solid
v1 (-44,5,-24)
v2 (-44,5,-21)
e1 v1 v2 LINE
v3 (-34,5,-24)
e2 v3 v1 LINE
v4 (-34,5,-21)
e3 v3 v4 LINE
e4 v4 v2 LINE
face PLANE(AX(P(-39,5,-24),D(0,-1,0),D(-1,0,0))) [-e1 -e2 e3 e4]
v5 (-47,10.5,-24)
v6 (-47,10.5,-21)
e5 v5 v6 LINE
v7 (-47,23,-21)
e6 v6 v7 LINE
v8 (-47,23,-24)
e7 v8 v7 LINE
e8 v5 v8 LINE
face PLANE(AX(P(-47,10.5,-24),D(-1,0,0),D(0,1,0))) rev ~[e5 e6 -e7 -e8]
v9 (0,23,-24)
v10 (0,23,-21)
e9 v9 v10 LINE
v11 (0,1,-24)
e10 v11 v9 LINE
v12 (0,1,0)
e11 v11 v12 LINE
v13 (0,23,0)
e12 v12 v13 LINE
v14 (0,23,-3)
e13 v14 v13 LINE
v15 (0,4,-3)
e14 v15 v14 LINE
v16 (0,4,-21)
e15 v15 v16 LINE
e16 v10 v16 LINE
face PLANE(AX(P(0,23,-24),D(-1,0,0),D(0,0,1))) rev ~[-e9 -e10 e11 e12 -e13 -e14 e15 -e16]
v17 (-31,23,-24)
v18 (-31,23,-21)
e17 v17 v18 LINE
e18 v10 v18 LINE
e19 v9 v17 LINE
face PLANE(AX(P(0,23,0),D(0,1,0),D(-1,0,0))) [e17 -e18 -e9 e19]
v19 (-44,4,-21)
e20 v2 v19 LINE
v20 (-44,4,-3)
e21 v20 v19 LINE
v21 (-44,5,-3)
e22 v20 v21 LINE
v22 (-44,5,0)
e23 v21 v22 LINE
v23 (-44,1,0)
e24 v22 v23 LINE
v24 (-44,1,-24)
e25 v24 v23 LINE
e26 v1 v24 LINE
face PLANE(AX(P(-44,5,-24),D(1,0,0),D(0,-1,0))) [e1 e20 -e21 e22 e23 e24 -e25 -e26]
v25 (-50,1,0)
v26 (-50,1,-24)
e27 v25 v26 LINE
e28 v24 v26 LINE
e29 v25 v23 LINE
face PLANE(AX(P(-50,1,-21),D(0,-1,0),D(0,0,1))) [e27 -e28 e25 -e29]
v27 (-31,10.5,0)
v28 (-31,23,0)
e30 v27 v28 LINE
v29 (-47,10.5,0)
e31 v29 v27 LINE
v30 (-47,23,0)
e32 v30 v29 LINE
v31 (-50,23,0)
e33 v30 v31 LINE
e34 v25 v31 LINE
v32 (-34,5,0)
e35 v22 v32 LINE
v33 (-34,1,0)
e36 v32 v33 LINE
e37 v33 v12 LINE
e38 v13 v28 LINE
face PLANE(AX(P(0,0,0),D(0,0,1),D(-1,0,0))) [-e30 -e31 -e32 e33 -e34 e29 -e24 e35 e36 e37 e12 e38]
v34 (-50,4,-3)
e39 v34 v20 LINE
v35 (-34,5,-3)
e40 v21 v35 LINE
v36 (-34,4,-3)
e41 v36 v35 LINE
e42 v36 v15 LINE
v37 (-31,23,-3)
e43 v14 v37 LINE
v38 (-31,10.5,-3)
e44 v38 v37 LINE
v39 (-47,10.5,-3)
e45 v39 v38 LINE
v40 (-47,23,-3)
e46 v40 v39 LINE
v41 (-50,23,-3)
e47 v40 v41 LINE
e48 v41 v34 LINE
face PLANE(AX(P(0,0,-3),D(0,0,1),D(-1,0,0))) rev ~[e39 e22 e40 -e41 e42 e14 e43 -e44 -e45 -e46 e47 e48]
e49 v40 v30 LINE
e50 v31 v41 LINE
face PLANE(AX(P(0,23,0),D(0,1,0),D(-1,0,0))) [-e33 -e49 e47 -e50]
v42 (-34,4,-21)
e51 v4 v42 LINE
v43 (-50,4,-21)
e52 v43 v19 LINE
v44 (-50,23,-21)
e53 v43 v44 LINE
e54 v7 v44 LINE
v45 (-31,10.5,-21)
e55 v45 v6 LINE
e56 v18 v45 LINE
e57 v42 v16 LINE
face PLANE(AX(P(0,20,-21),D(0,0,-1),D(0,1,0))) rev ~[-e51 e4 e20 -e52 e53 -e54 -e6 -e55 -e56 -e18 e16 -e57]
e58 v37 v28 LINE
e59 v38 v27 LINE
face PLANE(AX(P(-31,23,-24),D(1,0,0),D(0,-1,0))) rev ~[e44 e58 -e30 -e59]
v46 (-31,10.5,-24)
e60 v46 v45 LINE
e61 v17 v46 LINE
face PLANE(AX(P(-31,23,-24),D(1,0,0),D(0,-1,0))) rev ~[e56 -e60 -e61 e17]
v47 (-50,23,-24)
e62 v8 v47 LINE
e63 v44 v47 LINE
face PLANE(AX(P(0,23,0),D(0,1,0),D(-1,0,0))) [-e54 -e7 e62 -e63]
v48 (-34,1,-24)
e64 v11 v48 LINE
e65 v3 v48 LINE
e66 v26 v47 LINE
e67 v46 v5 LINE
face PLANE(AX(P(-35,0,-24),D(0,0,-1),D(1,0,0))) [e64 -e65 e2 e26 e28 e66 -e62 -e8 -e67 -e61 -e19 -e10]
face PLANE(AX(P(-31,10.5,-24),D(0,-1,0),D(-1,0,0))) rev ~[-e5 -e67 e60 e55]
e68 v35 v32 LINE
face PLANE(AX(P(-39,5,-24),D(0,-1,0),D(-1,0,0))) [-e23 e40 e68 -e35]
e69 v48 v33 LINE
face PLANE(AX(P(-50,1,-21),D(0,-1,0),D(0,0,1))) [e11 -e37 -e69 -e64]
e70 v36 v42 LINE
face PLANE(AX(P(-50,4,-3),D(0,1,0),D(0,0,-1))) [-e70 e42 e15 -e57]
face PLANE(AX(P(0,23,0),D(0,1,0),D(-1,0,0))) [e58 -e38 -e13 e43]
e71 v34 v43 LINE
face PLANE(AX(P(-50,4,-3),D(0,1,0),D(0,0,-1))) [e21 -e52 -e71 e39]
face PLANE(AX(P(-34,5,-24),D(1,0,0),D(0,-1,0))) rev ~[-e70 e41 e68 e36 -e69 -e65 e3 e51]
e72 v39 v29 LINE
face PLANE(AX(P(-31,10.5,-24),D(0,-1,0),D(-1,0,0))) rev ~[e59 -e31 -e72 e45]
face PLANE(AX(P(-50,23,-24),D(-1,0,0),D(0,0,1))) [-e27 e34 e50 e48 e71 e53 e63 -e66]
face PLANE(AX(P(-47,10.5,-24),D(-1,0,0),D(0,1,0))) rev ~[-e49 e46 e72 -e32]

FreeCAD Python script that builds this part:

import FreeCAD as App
import Part
import Sketcher
from FreeCAD import Vector

doc = App.newDocument("Part")
body = doc.addObject("PartDesign::Body", "Body")

# Sketch on XZ plane
sketch1 = body.newObject("Sketcher::SketchObject", "Sketch")
sketch1.AttachmentSupport = (doc.getObject("XZ_Plane"), [""])
sketch1.MapMode = "FlatFace"
sketch1.addGeometry([
    Part.LineSegment(Vector(-35, 0, 0), Vector(0, 0, 0)),
    Part.LineSegment(Vector(0, 0, 0), Vector(0, -24, 0)),
    Part.LineSegment(Vector(0, -24, 0), Vector(-35, -24, 0)),
    Part.LineSegment(Vector(-35, -24, 0), Vector(-35, 0, 0)),
], False)
sketch1.addConstraint([
    Sketcher.Constraint("Coincident", 0, 2, 1, 1),
    Sketcher.Constraint("Coincident", 1, 2, 2, 1),
    Sketcher.Constraint("Coincident", 2, 2, 3, 1),
    Sketcher.Constraint("Coincident", 3, 2, 0, 1),
    Sketcher.Constraint("Horizontal", 0),
    Sketcher.Constraint("Vertical", 1),
    Sketcher.Constraint("Horizontal", 2),
    Sketcher.Constraint("Vertical", 3),
    Sketcher.Constraint("Coincident", 0, 2, -1, 1),
    Sketcher.Constraint("DistanceX", 0, 1, 0, 2, 35.0),
    Sketcher.Constraint("DistanceY", 1, 2, 1, 1, 24.0),
])
pad1 = body.newObject("PartDesign::Pad", "Pad")
pad1.Profile = sketch1
pad1.Length = 23
pad1.Reversed = True

# Sketch on XZ plane
sketch2 = body.newObject("Sketcher::SketchObject", "Sketch001")
sketch2.AttachmentSupport = (doc.getObject("XZ_Plane"), [""])
sketch2.MapMode = "FlatFace"
sketch2.addGeometry([
    Part.LineSegment(Vector(-35, -3, 0), Vector(-35, -21, 0)),
    Part.LineSegment(Vector(-35, -21, 0), Vector(0, -21, 0)),
    Part.LineSegment(Vector(0, -21, 0), Vector(0, -3, 0)),
    Part.LineSegment(Vector(0, -3, 0), Vector(-35, -3, 0)),
], False)
sketch2.addConstraint([
    Sketcher.Constraint("Coincident", 0, 2, 1, 1),
    Sketcher.Constraint("Coincident", 1, 2, 2, 1),
    Sketcher.Constraint("Coincident", 2, 2, 3, 1),
    Sketcher.Constraint("Coincident", 3, 2, 0, 1),
    Sketcher.Constraint("Vertical", 0),
    Sketcher.Constraint("Horizontal", 1),
    Sketcher.Constraint("Vertical", 2),
    Sketcher.Constraint("Horizontal", 3),
    Sketcher.Constraint("PointOnObject", 1, 2, -2),
    Sketcher.Constraint("DistanceX", 1, 1, 1, 2, 35.0),
    Sketcher.Constraint("DistanceY", 0, 2, 0, 1, 18.0),
    Sketcher.Constraint("DistanceY", 0, 2, -1, 1, 21.0),
])
pocket1 = body.newObject("PartDesign::Pocket", "Pocket")
pocket1.Profile = sketch2
pocket1.Length = 20

# Sketch on YZ plane
sketch3 = body.newObject("Sketcher::SketchObject", "Sketch002")
sketch3.AttachmentSupport = (doc.getObject("YZ_Plane"), [""])
sketch3.MapMode = "FlatFace"
sketch3.addGeometry([
    Part.LineSegment(Vector(0, 0, 0), Vector(0, -24, 0)),
    Part.LineSegment(Vector(0, -24, 0), Vector(1, -24, 0)),
    Part.LineSegment(Vector(1, -24, 0), Vector(1, 0, 0)),
    Part.LineSegment(Vector(1, 0, 0), Vector(0, 0, 0)),
], False)
sketch3.addConstraint([
    Sketcher.Constraint("Coincident", 0, 2, 1, 1),
    Sketcher.Constraint("Coincident", 1, 2, 2, 1),
    Sketcher.Constraint("Coincident", 2, 2, 3, 1),
    Sketcher.Constraint("Coincident", 3, 2, 0, 1),
    Sketcher.Constraint("Vertical", 0),
    Sketcher.Constraint("Horizontal", 1),
    Sketcher.Constraint("Vertical", 2),
    Sketcher.Constraint("Horizontal", 3),
    Sketcher.Constraint("Coincident", 3, 2, -1, 1),
    Sketcher.Constraint("DistanceX", 1, 1, 1, 2, 1.0),
    Sketcher.Constraint("DistanceY", 0, 2, 0, 1, 24.0),
])
pocket2 = body.newObject("PartDesign::Pocket", "Pocket001")
pocket2.Profile = sketch3
pocket2.Length = 50.1625

# Sketch on YZ plane
sketch4 = body.newObject("Sketcher::SketchObject", "Sketch003")
sketch4.AttachmentSupport = (doc.getObject("YZ_Plane"), [""])
sketch4.MapMode = "FlatFace"
sketch4.AttachmentOffset = App.Placement(Vector(0, 0, -35), App.Rotation())
sketch4.addGeometry([
    Part.LineSegment(Vector(1, -24, 0), Vector(1, -21, 0)),  # 0
    Part.LineSegment(Vector(1, -21, 0), Vector(20, -21, 0)),  # 1
    Part.LineSegment(Vector(20, -21, 0), Vector(20, -3, 0)),  # 2
    Part.LineSegment(Vector(20, -3, 0), Vector(1, -3, 0)),  # 3
    Part.LineSegment(Vector(1, -3, 0), Vector(1, 0, 0)),  # 4
    Part.LineSegment(Vector(1, 0, 0), Vector(23, 0, 0)),  # 5
    Part.LineSegment(Vector(23, 0, 0), Vector(23, -24, 0)),  # 6
    Part.LineSegment(Vector(23, -24, 0), Vector(1, -24, 0)),  # 7
], False)
sketch4.addConstraint([
    Sketcher.Constraint("Coincident", 0, 2, 1, 1),
    Sketcher.Constraint("Coincident", 1, 2, 2, 1),
    Sketcher.Constraint("Coincident", 2, 2, 3, 1),
    Sketcher.Constraint("Coincident", 3, 2, 4, 1),
    Sketcher.Constraint("Coincident", 4, 2, 5, 1),
    Sketcher.Constraint("Coincident", 5, 2, 6, 1),
    Sketcher.Constraint("Coincident", 6, 2, 7, 1),
    Sketcher.Constraint("Coincident", 7, 2, 0, 1),
    Sketcher.Constraint("Vertical", 0),
    Sketcher.Constraint("Horizontal", 1),
    Sketcher.Constraint("Vertical", 2),
    Sketcher.Constraint("Horizontal", 3),
    Sketcher.Constraint("Vertical", 4),
    Sketcher.Constraint("Horizontal", 5),
    Sketcher.Constraint("Vertical", 6),
    Sketcher.Constraint("Horizontal", 7),
    Sketcher.Constraint("PointOnObject", 4, 2, -1),
    Sketcher.Constraint("Vertical", 0, 2, 3, 2),
    Sketcher.Constraint("Equal", 0, 4),
    Sketcher.Constraint("DistanceX", 1, 1, 1, 2, 19.0),
    Sketcher.Constraint("DistanceX", 5, 1, 5, 2, 22.0),
    Sketcher.Constraint("DistanceY", 0, 1, 0, 2, 3.0),
    Sketcher.Constraint("DistanceY", 2, 1, 2, 2, 18.0),
    Sketcher.Constraint("DistanceX", -1, 1, 0, 2, 1.0),
])
pad2 = body.newObject("PartDesign::Pad", "Pad001")
pad2.Profile = sketch4
pad2.Length = 15
pad2.Reversed = True

# Sketch on YZ plane
sketch5 = body.newObject("Sketcher::SketchObject", "Sketch004")
sketch5.AttachmentSupport = (doc.getObject("YZ_Plane"), [""])
sketch5.MapMode = "FlatFace"
sketch5.AttachmentOffset = App.Placement(Vector(0, 0, -50), App.Rotation())
sketch5.addGeometry([
    Part.LineSegment(Vector(1, -3, 0), Vector(4, -3, 0)),
    Part.LineSegment(Vector(4, -3, 0), Vector(4, -21, 0)),
    Part.LineSegment(Vector(4, -21, 0), Vector(1, -21, 0)),
    Part.LineSegment(Vector(1, -21, 0), Vector(1, -3, 0)),
], False)
sketch5.addConstraint([
    Sketcher.Constraint("Coincident", 0, 2, 1, 1),
    Sketcher.Constraint("Coincident", 1, 2, 2, 1),
    Sketcher.Constraint("Coincident", 2, 2, 3, 1),
    Sketcher.Constraint("Coincident", 3, 2, 0, 1),
    Sketcher.Constraint("Horizontal", 0),
    Sketcher.Constraint("Vertical", 1),
    Sketcher.Constraint("Horizontal", 2),
    Sketcher.Constraint("Vertical", 3),
    Sketcher.Constraint("DistanceX", 0, 1, 0, 2, 3.0),
    Sketcher.Constraint("DistanceY", 0, 2, -1, 1, 3.0),
    Sketcher.Constraint("DistanceY", 1, 2, 1, 1, 18.0),
    Sketcher.Constraint("DistanceX", -1, 1, 0, 2, 4.0),
])
pad3 = body.newObject("PartDesign::Pad", "Pad002")
pad3.Profile = sketch5
pad3.Length = 50

# Sketch on YZ plane
sketch6 = body.newObject("Sketcher::SketchObject", "Sketch005")
sketch6.AttachmentSupport = (doc.getObject("YZ_Plane"), [""])
sketch6.MapMode = "FlatFace"
sketch6.addGeometry([
    Part.LineSegment(Vector(23, -21, 0), Vector(23, -3, 0)),
    Part.LineSegment(Vector(23, -3, 0), Vector(20, -3, 0)),
    Part.LineSegment(Vector(20, -3, 0), Vector(20, -21, 0)),
    Part.LineSegment(Vector(20, -21, 0), Vector(23, -21, 0)),
], False)
sketch6.addConstraint([
    Sketcher.Constraint("Coincident", 0, 2, 1, 1),
    Sketcher.Constraint("Coincident", 1, 2, 2, 1),
    Sketcher.Constraint("Coincident", 2, 2, 3, 1),
    Sketcher.Constraint("Coincident", 3, 2, 0, 1),
    Sketcher.Constraint("Vertical", 0),
    Sketcher.Constraint("Horizontal", 1),
    Sketcher.Constraint("Vertical", 2),
    Sketcher.Constraint("Horizontal", 3),
    Sketcher.Constraint("DistanceY", 0, 1, 0, 2, 18.0),
    Sketcher.Constraint("DistanceX", 1, 2, 1, 1, 3.0),
    Sketcher.Constraint("DistanceX", -1, 1, 0, 2, 23.0),
    Sketcher.Constraint("DistanceY", 0, 2, -1, 1, 3.0),
])
pocket3 = body.newObject("PartDesign::Pocket", "Pocket002")
pocket3.Profile = sketch6
pocket3.Length = 50

# Sketch on XY plane
sketch7 = body.newObject("Sketcher::SketchObject", "Sketch006")
sketch7.AttachmentSupport = (doc.getObject("XY_Plane"), [""])
sketch7.MapMode = "FlatFace"
sketch7.AttachmentOffset = App.Placement(Vector(0, 0, -24), App.Rotation())
sketch7.addGeometry([
    Part.LineSegment(Vector(-47, 23, 0), Vector(-31, 23, 0)),
    Part.LineSegment(Vector(-31, 23, 0), Vector(-31, 10, 0)),
    Part.LineSegment(Vector(-31, 10, 0), Vector(-47, 10, 0)),
    Part.LineSegment(Vector(-47, 10, 0), Vector(-47, 23, 0)),
], False)
sketch7.addConstraint([
    Sketcher.Constraint("Coincident", 0, 2, 1, 1),
    Sketcher.Constraint("Coincident", 1, 2, 2, 1),
    Sketcher.Constraint("Coincident", 2, 2, 3, 1),
    Sketcher.Constraint("Coincident", 3, 2, 0, 1),
    Sketcher.Constraint("Horizontal", 0),
    Sketcher.Constraint("Vertical", 1),
    Sketcher.Constraint("Horizontal", 2),
    Sketcher.Constraint("Vertical", 3),
    Sketcher.Constraint("DistanceX", 0, 1, 0, 2, 16.0),
    Sketcher.Constraint("DistanceY", 1, 2, 1, 1, 12.5),
    Sketcher.Constraint("DistanceX", 0, 2, -1, 1, 31.0),
    Sketcher.Constraint("DistanceY", -1, 1, 0, 2, 23.0),
])
pocket4 = body.newObject("PartDesign::Pocket", "Pocket003")
pocket4.Profile = sketch7
pocket4.Length = 30.6375
pocket4.Reversed = True

# Sketch on XY plane
sketch8 = body.newObject("Sketcher::SketchObject", "Sketch007")
sketch8.AttachmentSupport = (doc.getObject("XY_Plane"), [""])
sketch8.MapMode = "FlatFace"
sketch8.AttachmentOffset = App.Placement(Vector(0, 0, -24), App.Rotation())
sketch8.addGeometry([
    Part.LineSegment(Vector(-34, 5, 0), Vector(-34, 1, 0)),
    Part.LineSegment(Vector(-34, 1, 0), Vector(-44, 1, 0)),
    Part.LineSegment(Vector(-44, 1, 0), Vector(-44, 5, 0)),
    Part.LineSegment(Vector(-44, 5, 0), Vector(-34, 5, 0)),
], False)
sketch8.addConstraint([
    Sketcher.Constraint("Coincident", 0, 2, 1, 1),
    Sketcher.Constraint("Coincident", 1, 2, 2, 1),
    Sketcher.Constraint("Coincident", 2, 2, 3, 1),
    Sketcher.Constraint("Coincident", 3, 2, 0, 1),
    Sketcher.Constraint("Vertical", 0),
    Sketcher.Constraint("Horizontal", 1),
    Sketcher.Constraint("Vertical", 2),
    Sketcher.Constraint("Horizontal", 3),
    Sketcher.Constraint("DistanceX", 1, 2, 1, 1, 10.0),
    Sketcher.Constraint("DistanceY", 0, 2, 0, 1, 4.0),
    Sketcher.Constraint("DistanceX", 0, 2, -1, 1, 34.0),
    Sketcher.Constraint("DistanceY", -1, 1, 0, 2, 1.0),
])
pocket5 = body.newObject("PartDesign::Pocket", "Pocket004")
pocket5.Profile = sketch8
pocket5.Length = 24
pocket5.Reversed = True

doc.recompute()
